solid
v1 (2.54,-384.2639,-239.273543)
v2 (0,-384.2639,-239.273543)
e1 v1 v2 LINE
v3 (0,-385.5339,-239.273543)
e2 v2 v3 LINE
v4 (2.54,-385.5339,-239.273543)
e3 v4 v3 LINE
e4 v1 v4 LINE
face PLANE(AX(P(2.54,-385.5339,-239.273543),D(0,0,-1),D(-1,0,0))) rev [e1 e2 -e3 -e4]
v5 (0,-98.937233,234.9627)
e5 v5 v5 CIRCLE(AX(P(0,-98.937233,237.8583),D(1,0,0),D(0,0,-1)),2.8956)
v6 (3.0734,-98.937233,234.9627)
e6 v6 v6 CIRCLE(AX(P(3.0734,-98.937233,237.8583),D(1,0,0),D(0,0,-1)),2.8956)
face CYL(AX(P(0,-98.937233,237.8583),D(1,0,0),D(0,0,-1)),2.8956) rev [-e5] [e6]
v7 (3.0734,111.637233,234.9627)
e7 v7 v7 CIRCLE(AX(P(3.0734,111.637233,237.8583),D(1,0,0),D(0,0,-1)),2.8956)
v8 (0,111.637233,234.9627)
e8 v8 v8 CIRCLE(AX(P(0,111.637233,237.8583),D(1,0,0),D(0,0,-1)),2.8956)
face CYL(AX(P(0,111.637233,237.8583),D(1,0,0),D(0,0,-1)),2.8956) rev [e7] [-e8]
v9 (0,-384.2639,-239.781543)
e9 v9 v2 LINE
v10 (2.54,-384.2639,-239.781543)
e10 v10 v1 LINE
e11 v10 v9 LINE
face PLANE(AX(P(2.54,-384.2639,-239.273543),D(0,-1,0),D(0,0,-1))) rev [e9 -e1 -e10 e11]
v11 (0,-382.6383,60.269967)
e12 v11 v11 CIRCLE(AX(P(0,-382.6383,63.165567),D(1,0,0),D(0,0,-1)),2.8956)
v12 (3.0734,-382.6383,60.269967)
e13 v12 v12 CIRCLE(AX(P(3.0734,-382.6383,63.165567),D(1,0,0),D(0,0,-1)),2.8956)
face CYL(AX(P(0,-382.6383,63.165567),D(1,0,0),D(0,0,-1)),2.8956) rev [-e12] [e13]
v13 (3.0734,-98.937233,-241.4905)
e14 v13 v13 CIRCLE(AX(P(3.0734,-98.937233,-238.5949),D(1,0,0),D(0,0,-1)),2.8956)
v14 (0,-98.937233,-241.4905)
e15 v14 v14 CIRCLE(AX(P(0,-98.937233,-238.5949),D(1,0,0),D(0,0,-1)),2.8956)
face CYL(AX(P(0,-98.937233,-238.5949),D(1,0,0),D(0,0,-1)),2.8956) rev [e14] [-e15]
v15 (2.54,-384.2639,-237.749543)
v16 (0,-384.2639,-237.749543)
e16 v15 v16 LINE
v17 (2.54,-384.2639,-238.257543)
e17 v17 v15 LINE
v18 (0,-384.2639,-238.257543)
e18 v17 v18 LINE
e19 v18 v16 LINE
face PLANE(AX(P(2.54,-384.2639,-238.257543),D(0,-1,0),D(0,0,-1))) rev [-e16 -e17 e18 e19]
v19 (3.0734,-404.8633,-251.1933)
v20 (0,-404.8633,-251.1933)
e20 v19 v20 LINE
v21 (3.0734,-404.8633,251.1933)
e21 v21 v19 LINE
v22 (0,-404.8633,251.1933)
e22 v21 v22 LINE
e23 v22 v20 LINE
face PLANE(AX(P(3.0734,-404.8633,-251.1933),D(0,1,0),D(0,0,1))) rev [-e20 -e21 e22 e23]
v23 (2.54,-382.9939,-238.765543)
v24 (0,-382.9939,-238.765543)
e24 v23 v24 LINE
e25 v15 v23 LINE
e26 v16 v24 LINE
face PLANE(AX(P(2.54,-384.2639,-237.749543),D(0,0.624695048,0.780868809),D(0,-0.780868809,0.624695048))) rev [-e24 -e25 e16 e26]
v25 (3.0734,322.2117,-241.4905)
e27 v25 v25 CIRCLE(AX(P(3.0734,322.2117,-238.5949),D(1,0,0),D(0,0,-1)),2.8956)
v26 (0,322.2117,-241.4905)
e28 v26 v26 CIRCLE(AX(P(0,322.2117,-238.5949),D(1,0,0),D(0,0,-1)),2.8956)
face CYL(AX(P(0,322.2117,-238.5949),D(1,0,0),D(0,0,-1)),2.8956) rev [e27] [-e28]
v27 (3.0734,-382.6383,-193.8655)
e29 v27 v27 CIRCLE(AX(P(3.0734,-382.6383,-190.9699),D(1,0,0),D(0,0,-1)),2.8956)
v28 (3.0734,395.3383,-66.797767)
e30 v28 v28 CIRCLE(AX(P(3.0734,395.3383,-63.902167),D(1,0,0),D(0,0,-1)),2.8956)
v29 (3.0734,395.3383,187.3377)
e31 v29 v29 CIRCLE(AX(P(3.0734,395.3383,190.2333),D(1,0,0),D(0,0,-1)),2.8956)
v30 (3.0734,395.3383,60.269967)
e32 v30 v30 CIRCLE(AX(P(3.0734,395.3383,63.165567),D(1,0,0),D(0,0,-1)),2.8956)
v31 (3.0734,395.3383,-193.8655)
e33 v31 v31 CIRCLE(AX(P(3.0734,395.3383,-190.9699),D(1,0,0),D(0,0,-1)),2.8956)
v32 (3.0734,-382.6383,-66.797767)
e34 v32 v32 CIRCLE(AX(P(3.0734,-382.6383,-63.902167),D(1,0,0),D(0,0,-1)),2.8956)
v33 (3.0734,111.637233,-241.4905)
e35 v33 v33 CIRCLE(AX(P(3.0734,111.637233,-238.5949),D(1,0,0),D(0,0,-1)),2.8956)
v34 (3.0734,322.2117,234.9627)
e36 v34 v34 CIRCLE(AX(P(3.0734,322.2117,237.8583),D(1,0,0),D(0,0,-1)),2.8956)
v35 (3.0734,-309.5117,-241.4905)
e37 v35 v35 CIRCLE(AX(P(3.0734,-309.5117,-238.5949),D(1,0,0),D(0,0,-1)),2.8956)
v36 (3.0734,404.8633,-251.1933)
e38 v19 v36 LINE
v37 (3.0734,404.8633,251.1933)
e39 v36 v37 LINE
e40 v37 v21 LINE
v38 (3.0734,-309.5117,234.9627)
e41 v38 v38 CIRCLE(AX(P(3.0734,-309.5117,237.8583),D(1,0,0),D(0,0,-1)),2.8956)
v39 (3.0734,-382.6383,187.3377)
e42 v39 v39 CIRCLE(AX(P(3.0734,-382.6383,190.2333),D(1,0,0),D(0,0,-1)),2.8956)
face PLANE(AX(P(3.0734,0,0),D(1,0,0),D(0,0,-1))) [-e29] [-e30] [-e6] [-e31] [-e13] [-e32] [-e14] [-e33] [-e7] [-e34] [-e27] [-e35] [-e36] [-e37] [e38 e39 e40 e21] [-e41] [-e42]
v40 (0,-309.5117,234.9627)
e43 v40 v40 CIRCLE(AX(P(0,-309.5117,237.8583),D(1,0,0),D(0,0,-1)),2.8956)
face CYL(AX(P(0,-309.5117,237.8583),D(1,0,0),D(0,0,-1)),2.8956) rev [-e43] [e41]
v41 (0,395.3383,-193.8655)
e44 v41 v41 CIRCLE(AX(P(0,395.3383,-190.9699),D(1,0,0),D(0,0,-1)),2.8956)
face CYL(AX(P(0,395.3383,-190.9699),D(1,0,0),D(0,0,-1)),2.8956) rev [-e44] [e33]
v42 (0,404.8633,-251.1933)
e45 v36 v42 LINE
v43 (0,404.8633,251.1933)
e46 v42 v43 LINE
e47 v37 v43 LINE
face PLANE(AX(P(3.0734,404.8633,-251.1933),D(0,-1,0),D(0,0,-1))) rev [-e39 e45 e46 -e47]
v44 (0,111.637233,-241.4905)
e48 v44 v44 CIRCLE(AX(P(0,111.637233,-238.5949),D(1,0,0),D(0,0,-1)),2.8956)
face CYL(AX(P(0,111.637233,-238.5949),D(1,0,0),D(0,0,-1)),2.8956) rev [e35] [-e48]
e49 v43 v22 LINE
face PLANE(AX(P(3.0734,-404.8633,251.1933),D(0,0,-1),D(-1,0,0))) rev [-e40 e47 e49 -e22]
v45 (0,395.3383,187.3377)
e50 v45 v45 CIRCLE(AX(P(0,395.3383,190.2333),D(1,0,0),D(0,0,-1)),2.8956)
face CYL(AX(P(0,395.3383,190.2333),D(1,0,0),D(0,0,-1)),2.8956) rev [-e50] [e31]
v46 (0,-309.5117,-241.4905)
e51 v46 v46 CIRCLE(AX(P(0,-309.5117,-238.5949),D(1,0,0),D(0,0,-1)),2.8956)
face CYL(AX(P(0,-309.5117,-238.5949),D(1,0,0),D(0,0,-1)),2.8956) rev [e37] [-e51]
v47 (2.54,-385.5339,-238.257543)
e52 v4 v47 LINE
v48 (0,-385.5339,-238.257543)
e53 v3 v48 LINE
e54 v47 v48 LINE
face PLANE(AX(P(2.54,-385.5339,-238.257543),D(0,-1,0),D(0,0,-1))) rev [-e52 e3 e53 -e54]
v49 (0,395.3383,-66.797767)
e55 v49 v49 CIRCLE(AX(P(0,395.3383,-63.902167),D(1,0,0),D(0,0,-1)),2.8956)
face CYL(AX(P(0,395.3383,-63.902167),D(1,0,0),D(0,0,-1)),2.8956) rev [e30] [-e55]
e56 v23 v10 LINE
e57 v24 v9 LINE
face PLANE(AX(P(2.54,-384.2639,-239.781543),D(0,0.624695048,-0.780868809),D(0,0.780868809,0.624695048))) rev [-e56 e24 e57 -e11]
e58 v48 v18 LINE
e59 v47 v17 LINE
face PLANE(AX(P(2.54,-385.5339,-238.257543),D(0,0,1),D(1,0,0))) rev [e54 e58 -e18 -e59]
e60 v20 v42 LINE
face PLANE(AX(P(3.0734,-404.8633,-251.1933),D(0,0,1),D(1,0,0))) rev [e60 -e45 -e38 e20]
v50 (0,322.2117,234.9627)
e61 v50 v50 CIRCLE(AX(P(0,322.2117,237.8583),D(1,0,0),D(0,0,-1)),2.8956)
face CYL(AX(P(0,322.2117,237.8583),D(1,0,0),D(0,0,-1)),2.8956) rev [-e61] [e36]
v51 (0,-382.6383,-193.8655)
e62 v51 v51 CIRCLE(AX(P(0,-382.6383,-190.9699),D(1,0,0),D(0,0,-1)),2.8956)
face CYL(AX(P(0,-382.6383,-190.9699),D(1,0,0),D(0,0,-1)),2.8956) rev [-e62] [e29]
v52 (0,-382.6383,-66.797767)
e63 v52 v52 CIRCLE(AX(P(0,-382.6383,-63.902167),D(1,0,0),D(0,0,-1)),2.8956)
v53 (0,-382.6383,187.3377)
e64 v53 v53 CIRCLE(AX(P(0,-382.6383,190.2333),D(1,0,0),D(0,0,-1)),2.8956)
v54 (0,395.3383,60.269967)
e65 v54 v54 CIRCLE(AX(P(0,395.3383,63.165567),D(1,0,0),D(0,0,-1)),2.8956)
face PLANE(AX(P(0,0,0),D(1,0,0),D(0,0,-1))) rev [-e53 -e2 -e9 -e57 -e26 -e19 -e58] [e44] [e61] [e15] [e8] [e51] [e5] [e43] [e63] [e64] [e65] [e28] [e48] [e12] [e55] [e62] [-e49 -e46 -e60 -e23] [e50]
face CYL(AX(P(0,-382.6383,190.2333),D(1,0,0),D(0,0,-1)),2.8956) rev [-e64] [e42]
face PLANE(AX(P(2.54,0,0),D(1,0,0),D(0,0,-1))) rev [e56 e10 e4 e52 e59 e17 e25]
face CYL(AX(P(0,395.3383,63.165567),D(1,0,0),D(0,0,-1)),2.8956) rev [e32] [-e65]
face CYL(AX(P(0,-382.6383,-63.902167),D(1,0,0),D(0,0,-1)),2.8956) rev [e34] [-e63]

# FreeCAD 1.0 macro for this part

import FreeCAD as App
import Part
import Sketcher
Q = App.Units.Quantity

doc = App.newDocument("Part")
body = doc.addObject("PartDesign::Body", "Body")

sketch1 = body.newObject("Sketcher::SketchObject", "Sketch")
sketch1.AttachmentSupport = (doc.getObject("YZ_Plane"), [""])
sketch1.MapMode = "FlatFace"
sketch1.addGeometry(Part.LineSegment(App.Vector(405, 251, 0), App.Vector(-405, 251, 0)), False)
sketch1.addGeometry(Part.LineSegment(App.Vector(-405, 251, 0), App.Vector(-405, -251, 0)), False)
sketch1.addGeometry(Part.LineSegment(App.Vector(-405, -251, 0), App.Vector(405, -251, 0)), False)
sketch1.addGeometry(Part.LineSegment(App.Vector(405, -251, 0), App.Vector(405, 251, 0)), False)
sketch1.addConstraint(Sketcher.Constraint("Coincident", 0, 2, 1, 1))
sketch1.addConstraint(Sketcher.Constraint("Coincident", 1, 2, 2, 1))
sketch1.addConstraint(Sketcher.Constraint("Coincident", 2, 2, 3, 1))
sketch1.addConstraint(Sketcher.Constraint("Coincident", 3, 2, 0, 1))
sketch1.addConstraint(Sketcher.Constraint("Horizontal", 0))
sketch1.addConstraint(Sketcher.Constraint("Vertical", 1))
sketch1.addConstraint(Sketcher.Constraint("Horizontal", 2))
sketch1.addConstraint(Sketcher.Constraint("Vertical", 3))
sketch1.addConstraint(Sketcher.Constraint("Symmetric", 0, 2, 2, 2, -1, 1))
sketch1.addConstraint(Sketcher.Constraint("DistanceX", 0, 2, 0, 1, Q("31.879 in")))
sketch1.addConstraint(Sketcher.Constraint("DistanceY", 1, 2, 1, 1, Q("19.779 in")))
pad1 = body.newObject("PartDesign::Pad", "Pad")
pad1.Profile = sketch1
pad1.Length = Q("0.121 in")

sketch2 = body.newObject("Sketcher::SketchObject", "Sketch001")
sketch2.AttachmentSupport = (doc.getObject("YZ_Plane"), [""])
sketch2.MapMode = "FlatFace"
sketch2.AttachmentOffset = App.Placement(App.Vector(0, 0, 0.121 * 25.4), App.Rotation())
sketch2.addGeometry(Part.Circle(App.Vector(395.3, -191, 0), App.Vector(0, 0, 1), 2.9), False)
sketch2.addGeometry(Part.Circle(App.Vector(-382.6, -191, 0), App.Vector(0, 0, 1), 2.9), False)
sketch2.addConstraint(Sketcher.Constraint("Equal", 0, 1))
sketch2.addConstraint(Sketcher.Constraint("Horizontal", 0, 3, 1, 3))
sketch2.addConstraint(Sketcher.Constraint("Diameter", 0, Q("0.228 in")))
sketch2.addConstraint(Sketcher.Constraint("DistanceX", 1, 3, 0, 3, Q("30.629 in")))
sketch2.addConstraint(Sketcher.Constraint("DistanceX", -1, 1, 0, 3, Q("15.5645 in")))
sketch2.addConstraint(Sketcher.Constraint("DistanceY", 0, 3, -1, 1, Q("7.5185 in")))
pocket1 = body.newObject("PartDesign::Pocket", "Pocket")
pocket1.Profile = sketch2
pocket1.Type = "ThroughAll"
doc.recompute()

linearpattern = body.newObject("PartDesign::LinearPattern", "LinearPattern")
linearpattern.Originals = [pocket1]
linearpattern.Direction = (doc.getObject("Z_Axis"), [""])
linearpattern.Mode = "offset"
linearpattern.Offset = 127.067733
linearpattern.Occurrences = 4
body.Tip = linearpattern

sketch3 = body.newObject("Sketcher::SketchObject", "Sketch002")
sketch3.AttachmentSupport = (doc.getObject("YZ_Plane"), [""])
sketch3.MapMode = "FlatFace"
sketch3.AttachmentOffset = App.Placement(App.Vector(0, 0, 0.121 * 25.4), App.Rotation())
sketch3.addGeometry(Part.Circle(App.Vector(322.2, 237.9, 0), App.Vector(0, 0, 1), 2.9), False)
sketch3.addGeometry(Part.Circle(App.Vector(322.2, -238.6, 0), App.Vector(0, 0, 1), 2.9), False)
sketch3.addConstraint(Sketcher.Constraint("Equal", 0, 1))
sketch3.addConstraint(Sketcher.Constraint("Vertical", 0, 3, 1, 3))
sketch3.addConstraint(Sketcher.Constraint("Diameter", 0, Q("0.228 in")))
sketch3.addConstraint(Sketcher.Constraint("DistanceY", 1, 3, 0, 3, Q("18.758 in")))
sketch3.addConstraint(Sketcher.Constraint("DistanceX", -1, 1, 0, 3, Q("12.6855 in")))
sketch3.addConstraint(Sketcher.Constraint("DistanceY", -1, 1, 0, 3, Q("9.3645 in")))
pocket2 = body.newObject("PartDesign::Pocket", "Pocket001")
pocket2.Profile = sketch3
pocket2.Type = "ThroughAll"
doc.recompute()

linearpattern2 = body.newObject("PartDesign::LinearPattern", "LinearPattern001")
linearpattern2.Originals = [pocket2]
linearpattern2.Direction = (doc.getObject("Y_Axis"), [""])
linearpattern2.Mode = "offset"
linearpattern2.Offset = 210.574467
linearpattern2.Occurrences = 4
linearpattern2.Reversed = True
body.Tip = linearpattern2

sketch4 = body.newObject("Sketcher::SketchObject", "Sketch003")
sketch4.AttachmentSupport = (doc.getObject("YZ_Plane"), [""])
sketch4.MapMode = "FlatFace"
sketch4.addGeometry(Part.LineSegment(App.Vector(-385.5, -239.3, 0), App.Vector(-385.5, -238.3, 0)), False)
sketch4.addGeometry(Part.LineSegment(App.Vector(-385.5, -238.3, 0), App.Vector(-384.3, -238.3, 0)), False)
sketch4.addGeometry(Part.LineSegment(App.Vector(-384.3, -238.3, 0), App.Vector(-384.3, -237.7, 0)), False)
sketch4.addGeometry(Part.LineSegment(App.Vector(-384.3, -237.7, 0), App.Vector(-383, -238.8, 0)), False)
sketch4.addGeometry(Part.LineSegment(App.Vector(-383, -238.8, 0), App.Vector(-384.3, -239.8, 0)), False)
sketch4.addGeometry(Part.LineSegment(App.Vector(-384.3, -239.8, 0), App.Vector(-384.3, -239.3, 0)), False)
sketch4.addGeometry(Part.LineSegment(App.Vector(-384.3, -239.3, 0), App.Vector(-385.5, -239.3, 0)), False)
sketch4.addConstraint(Sketcher.Constraint("Coincident", 0, 2, 1, 1))
sketch4.addConstraint(Sketcher.Constraint("Coincident", 1, 2, 2, 1))
sketch4.addConstraint(Sketcher.Constraint("Coincident", 2, 2, 3, 1))
sketch4.addConstraint(Sketcher.Constraint("Coincident", 3, 2, 4, 1))
sketch4.addConstraint(Sketcher.Constraint("Coincident", 4, 2, 5, 1))
sketch4.addConstraint(Sketcher.Constraint("Coincident", 5, 2, 6, 1))
sketch4.addConstraint(Sketcher.Constraint("Coincident", 6, 2, 0, 1))
sketch4.addConstraint(Sketcher.Constraint("Vertical", 0))
sketch4.addConstraint(Sketcher.Constraint("Horizontal", 1))
sketch4.addConstraint(Sketcher.Constraint("Vertical", 2))
sketch4.addConstraint(Sketcher.Constraint("Vertical", 5))
sketch4.addConstraint(Sketcher.Constraint("Horizontal", 6))
sketch4.addConstraint(Sketcher.Constraint("Vertical", 2, 2, 4, 2))
sketch4.addConstraint(Sketcher.Constraint("Equal", 2, 5))
sketch4.addConstraint(Sketcher.Constraint("Equal", 3, 4))
sketch4.addConstraint(Sketcher.Constraint("DistanceX", 1, 1, 1, 2, Q("0.05 in")))
sketch4.addConstraint(Sketcher.Constraint("DistanceY", 0, 1, 0, 2, Q("0.04 in")))
sketch4.addConstraint(Sketcher.Constraint("DistanceY", 2, 1, 2, 2, Q("0.02 in")))
sketch4.addConstraint(Sketcher.Constraint("DistanceX", 0, 2, 3, 2, Q("0.1 in")))
sketch4.addConstraint(Sketcher.Constraint("DistanceX", 0, 2, -1, 1, Q("15.1785 in")))
sketch4.addConstraint(Sketcher.Constraint("DistanceY", 0, 2, -1, 1, Q("238.257543 mm")))
pocket3 = body.newObject("PartDesign::Pocket", "Pocket002")
pocket3.Profile = sketch4
pocket3.Length = Q("0.1 in")
pocket3.Reversed = True

doc.recompute()
